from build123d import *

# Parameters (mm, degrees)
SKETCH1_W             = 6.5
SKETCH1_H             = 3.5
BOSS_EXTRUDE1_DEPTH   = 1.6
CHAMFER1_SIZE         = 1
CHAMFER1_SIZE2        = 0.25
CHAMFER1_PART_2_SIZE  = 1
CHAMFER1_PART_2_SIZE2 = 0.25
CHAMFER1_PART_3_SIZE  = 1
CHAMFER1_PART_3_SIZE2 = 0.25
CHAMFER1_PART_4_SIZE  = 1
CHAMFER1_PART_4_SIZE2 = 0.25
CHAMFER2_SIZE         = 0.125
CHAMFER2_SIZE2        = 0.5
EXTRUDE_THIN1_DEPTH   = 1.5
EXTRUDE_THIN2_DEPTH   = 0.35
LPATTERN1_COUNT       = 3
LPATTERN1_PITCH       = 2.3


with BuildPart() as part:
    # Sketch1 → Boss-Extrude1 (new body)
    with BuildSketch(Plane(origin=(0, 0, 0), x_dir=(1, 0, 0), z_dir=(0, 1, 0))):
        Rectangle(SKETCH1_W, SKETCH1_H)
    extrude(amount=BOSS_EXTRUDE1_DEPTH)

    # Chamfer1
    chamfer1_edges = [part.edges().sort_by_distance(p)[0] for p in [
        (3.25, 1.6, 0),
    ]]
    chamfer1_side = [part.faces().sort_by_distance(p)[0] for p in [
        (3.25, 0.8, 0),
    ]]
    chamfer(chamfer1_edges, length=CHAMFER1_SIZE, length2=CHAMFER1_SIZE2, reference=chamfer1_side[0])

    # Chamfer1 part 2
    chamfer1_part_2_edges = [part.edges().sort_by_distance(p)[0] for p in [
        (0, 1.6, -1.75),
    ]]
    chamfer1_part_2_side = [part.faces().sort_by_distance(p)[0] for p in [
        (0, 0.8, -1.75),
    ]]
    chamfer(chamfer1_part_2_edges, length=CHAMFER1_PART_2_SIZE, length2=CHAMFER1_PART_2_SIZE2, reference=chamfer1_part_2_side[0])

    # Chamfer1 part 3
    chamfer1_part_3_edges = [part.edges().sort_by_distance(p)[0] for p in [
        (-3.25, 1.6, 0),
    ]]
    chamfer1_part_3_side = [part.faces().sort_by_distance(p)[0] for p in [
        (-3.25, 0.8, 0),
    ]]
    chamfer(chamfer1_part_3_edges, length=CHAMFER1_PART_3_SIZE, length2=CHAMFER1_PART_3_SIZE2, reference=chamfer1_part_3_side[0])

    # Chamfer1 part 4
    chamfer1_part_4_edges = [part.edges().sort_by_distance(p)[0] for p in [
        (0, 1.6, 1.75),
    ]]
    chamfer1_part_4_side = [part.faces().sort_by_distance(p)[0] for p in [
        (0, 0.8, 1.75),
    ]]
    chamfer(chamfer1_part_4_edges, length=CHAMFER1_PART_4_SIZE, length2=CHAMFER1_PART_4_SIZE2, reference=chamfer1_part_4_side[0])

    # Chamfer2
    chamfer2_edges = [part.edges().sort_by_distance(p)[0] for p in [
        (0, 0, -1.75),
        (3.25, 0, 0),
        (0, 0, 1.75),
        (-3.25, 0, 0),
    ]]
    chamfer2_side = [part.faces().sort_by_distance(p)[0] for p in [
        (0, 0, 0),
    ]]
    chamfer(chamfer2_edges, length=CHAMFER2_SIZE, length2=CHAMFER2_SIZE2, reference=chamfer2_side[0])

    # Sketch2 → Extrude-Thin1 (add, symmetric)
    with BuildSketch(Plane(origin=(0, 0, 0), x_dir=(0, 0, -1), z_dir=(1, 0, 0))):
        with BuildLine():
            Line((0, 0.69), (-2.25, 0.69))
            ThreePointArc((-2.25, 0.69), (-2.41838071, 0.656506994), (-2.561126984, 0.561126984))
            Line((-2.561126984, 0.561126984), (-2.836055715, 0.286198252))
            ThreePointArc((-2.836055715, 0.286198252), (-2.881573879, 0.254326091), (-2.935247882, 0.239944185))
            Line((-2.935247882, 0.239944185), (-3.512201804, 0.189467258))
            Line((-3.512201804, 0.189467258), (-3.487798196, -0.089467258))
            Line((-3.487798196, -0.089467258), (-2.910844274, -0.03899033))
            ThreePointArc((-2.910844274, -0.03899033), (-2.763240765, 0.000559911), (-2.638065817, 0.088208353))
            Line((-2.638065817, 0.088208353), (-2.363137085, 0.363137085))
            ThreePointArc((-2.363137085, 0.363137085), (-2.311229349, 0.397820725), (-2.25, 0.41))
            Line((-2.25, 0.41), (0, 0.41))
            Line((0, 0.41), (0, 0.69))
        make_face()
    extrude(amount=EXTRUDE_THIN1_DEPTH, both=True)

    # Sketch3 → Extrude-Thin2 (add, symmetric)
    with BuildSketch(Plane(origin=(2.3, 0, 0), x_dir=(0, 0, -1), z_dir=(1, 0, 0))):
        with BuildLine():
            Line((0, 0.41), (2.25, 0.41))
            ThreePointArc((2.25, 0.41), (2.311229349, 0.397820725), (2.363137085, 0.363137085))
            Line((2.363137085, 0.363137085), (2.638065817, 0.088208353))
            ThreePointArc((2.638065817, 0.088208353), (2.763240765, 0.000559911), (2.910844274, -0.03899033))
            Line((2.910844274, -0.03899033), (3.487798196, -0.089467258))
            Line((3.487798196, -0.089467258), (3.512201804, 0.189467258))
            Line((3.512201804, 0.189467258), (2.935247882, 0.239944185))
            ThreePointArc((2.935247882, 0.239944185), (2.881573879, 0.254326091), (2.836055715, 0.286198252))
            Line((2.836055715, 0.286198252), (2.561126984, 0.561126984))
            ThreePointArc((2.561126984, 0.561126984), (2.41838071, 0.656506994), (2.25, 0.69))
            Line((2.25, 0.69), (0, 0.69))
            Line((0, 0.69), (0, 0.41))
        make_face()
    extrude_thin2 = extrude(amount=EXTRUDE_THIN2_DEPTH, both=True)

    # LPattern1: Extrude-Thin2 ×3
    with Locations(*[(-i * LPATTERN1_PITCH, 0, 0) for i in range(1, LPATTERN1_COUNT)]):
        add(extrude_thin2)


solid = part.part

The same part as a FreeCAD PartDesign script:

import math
import FreeCAD as App
import Part
import Sketcher
from FreeCAD import Vector
Q = App.Units.Quantity


def edges_at(feature, points):
    """Names of the edges that pass closest to the given points."""
    edges = feature.Shape.Edges
    near = lambda p: min(range(len(edges)), key=lambda i: edges[i].distToShape(Part.Vertex(*p))[0])
    return sorted({f"Edge{near(p) + 1}" for p in points})

doc = App.newDocument("Part")
body = doc.addObject("PartDesign::Body", "Body")

# Sketch on XZ plane
sketch1 = doc.addObject("Sketcher::SketchObject", "Sketch")
body.addObject(sketch1)
sketch1.AttachmentSupport = (doc.XZ_Plane, [""])
sketch1.MapMode = "FlatFace"
sketch1.addGeometry(Part.LineSegment(Vector(-3.2, -1.8, 0), Vector(-3.2, 1.8, 0)), False)
sketch1.addGeometry(Part.LineSegment(Vector(-3.2, 1.8, 0), Vector(3.2, 1.8, 0)), False)
sketch1.addGeometry(Part.LineSegment(Vector(3.2, 1.8, 0), Vector(3.2, -1.8, 0)), False)
sketch1.addGeometry(Part.LineSegment(Vector(3.2, -1.8, 0), Vector(-3.2, -1.8, 0)), False)
sketch1.addConstraint(Sketcher.Constraint("Coincident", 0, 2, 1, 1))
sketch1.addConstraint(Sketcher.Constraint("Coincident", 1, 2, 2, 1))
sketch1.addConstraint(Sketcher.Constraint("Coincident", 2, 2, 3, 1))
sketch1.addConstraint(Sketcher.Constraint("Coincident", 3, 2, 0, 1))
sketch1.addConstraint(Sketcher.Constraint("Vertical", 0))
sketch1.addConstraint(Sketcher.Constraint("Horizontal", 1))
sketch1.addConstraint(Sketcher.Constraint("Vertical", 2))
sketch1.addConstraint(Sketcher.Constraint("Horizontal", 3))
sketch1.addConstraint(Sketcher.Constraint("Symmetric", 0, 2, 2, 2, -1, 1))
sketch1.addConstraint(Sketcher.Constraint("DistanceX", 1, 1, 1, 2, Q("6.5 mm")))
sketch1.addConstraint(Sketcher.Constraint("DistanceY", 0, 1, 0, 2, Q("3.5 mm")))
pad1 = doc.addObject("PartDesign::Pad", "Pad")
body.addObject(pad1)
pad1.Profile = sketch1
pad1.Length = 1.6
pad1.Reversed = True
doc.recompute()

chamfer = doc.addObject("PartDesign::Chamfer", "Chamfer")
body.addObject(chamfer)
chamfer.Base = (pad1, edges_at(pad1, [(3.25, 1.6, 0)]))
chamfer.ChamferType = "Two distances"
chamfer.Size = 1
chamfer.Size2 = 0.25
doc.recompute()

chamfer2 = doc.addObject("PartDesign::Chamfer", "Chamfer001")
body.addObject(chamfer2)
chamfer2.Base = (chamfer, edges_at(chamfer, [(-0.125, 1.6, -1.75)]))
chamfer2.ChamferType = "Two distances"
chamfer2.Size = 1
chamfer2.Size2 = 0.25
chamfer2.FlipDirection = True
doc.recompute()

chamfer3 = doc.addObject("PartDesign::Chamfer", "Chamfer002")
body.addObject(chamfer3)
chamfer3.Base = (chamfer2, edges_at(chamfer2, [(-3.25, 1.6, 0.125)]))
chamfer3.ChamferType = "Two distances"
chamfer3.Size = 1
chamfer3.Size2 = 0.25
chamfer3.FlipDirection = True
doc.recompute()

chamfer4 = doc.addObject("PartDesign::Chamfer", "Chamfer003")
body.addObject(chamfer4)
chamfer4.Base = (chamfer3, edges_at(chamfer3, [(0, 1.6, 1.75)]))
chamfer4.ChamferType = "Two distances"
chamfer4.Size = 1
chamfer4.Size2 = 0.25
chamfer4.FlipDirection = True
doc.recompute()

chamfer5 = doc.addObject("PartDesign::Chamfer", "Chamfer004")
body.addObject(chamfer5)
chamfer5.Base = (chamfer4, edges_at(chamfer4, [
    (0, 0, -1.75),
    (3.25, 0, 0),
    (0, 0, 1.75),
    (-3.25, 0, 0),
]))
chamfer5.ChamferType = "Two distances"
chamfer5.Size = 0.125
chamfer5.Size2 = 0.5
chamfer5.FlipDirection = True

# Sketch on YZ plane
sketch2 = doc.addObject("Sketcher::SketchObject", "Sketch001")
body.addObject(sketch2)
sketch2.AttachmentSupport = (doc.YZ_Plane, [""])
sketch2.MapMode = "FlatFace"
sketch2.addGeometry(Part.LineSegment(Vector(0.69, 0, 0), Vector(0.69, 2.25, 0)), False)
sketch2.addGeometry(Part.ArcOfCircle(Part.Circle(Vector(0.25, 2.25, 0), Vector(0, 0, 1), 0.44), math.radians(0), math.radians(45)), False)
sketch2.addGeometry(Part.LineSegment(Vector(0.56, 2.56, 0), Vector(0.29, 2.84, 0)), False)
sketch2.addGeometry(Part.ArcOfCircle(Part.Circle(Vector(0.4, 2.95, 0), Vector(0, 0, 1), 0.16), math.radians(-175), math.radians(-135)), False)
sketch2.addGeometry(Part.LineSegment(Vector(0.24, 2.94, 0), Vector(0.19, 3.51, 0)), False)
sketch2.addGeometry(Part.LineSegment(Vector(0.19, 3.51, 0), Vector(-0.09, 3.49, 0)), False)
sketch2.addGeometry(Part.LineSegment(Vector(-0.09, 3.49, 0), Vector(-0.04, 2.91, 0)), False)
sketch2.addGeometry(Part.ArcOfCircle(Part.Circle(Vector(0.4, 2.95, 0), Vector(0, 0, 1), 0.44), math.radians(-175), math.radians(-135)), False)
sketch2.addGeometry(Part.LineSegment(Vector(0.09, 2.64, 0), Vector(0.36, 2.36, 0)), False)
sketch2.addGeometry(Part.ArcOfCircle(Part.Circle(Vector(0.25, 2.25, 0), Vector(0, 0, 1), 0.16), math.radians(0), math.radians(45)), False)
sketch2.addGeometry(Part.LineSegment(Vector(0.41, 2.25, 0), Vector(0.41, 0, 0)), False)
sketch2.addGeometry(Part.LineSegment(Vector(0.41, 0, 0), Vector(0.69, 0, 0)), False)
sketch2.addConstraint(Sketcher.Constraint("Tangent", 0, 2, 1, 1))
sketch2.addConstraint(Sketcher.Constraint("Tangent", 1, 2, 2, 1))
sketch2.addConstraint(Sketcher.Constraint("Tangent", 2, 2, 3, 2))
sketch2.addConstraint(Sketcher.Constraint("Tangent", 3, 1, 4, 1))
sketch2.addConstraint(Sketcher.Constraint("Coincident", 4, 2, 5, 1))
sketch2.addConstraint(Sketcher.Constraint("Coincident", 5, 2, 6, 1))
sketch2.addConstraint(Sketcher.Constraint("Tangent", 6, 2, 7, 1))
sketch2.addConstraint(Sketcher.Constraint("Tangent", 7, 2, 8, 1))
sketch2.addConstraint(Sketcher.Constraint("Tangent", 8, 2, 9, 2))
sketch2.addConstraint(Sketcher.Constraint("Tangent", 9, 1, 10, 1))
sketch2.addConstraint(Sketcher.Constraint("Coincident", 10, 2, 11, 1))
sketch2.addConstraint(Sketcher.Constraint("Coincident", 11, 2, 0, 1))
sketch2.addConstraint(Sketcher.Constraint("Vertical", 0))
sketch2.addConstraint(Sketcher.Constraint("Vertical", 10))
sketch2.addConstraint(Sketcher.Constraint("Horizontal", 11))
sketch2.addConstraint(Sketcher.Constraint("Coincident", 7, 3, 3, 3))
sketch2.addConstraint(Sketcher.Constraint("Coincident", 9, 3, 1, 3))
sketch2.addConstraint(Sketcher.Constraint("Equal", 1, 7))
sketch2.addConstraint(Sketcher.Constraint("Equal", 3, 9))
sketch2.addConstraint(Sketcher.Constraint("PointOnObject", 10, 2, -1))
sketch2.addConstraint(Sketcher.Constraint("Perpendicular", 4, 5))
sketch2.addConstraint(Sketcher.Constraint("Perpendicular", 5, 6))
sketch2.addConstraint(Sketcher.Constraint("Angle", 2, Q("135 deg")))
sketch2.addConstraint(Sketcher.Constraint("Angle", 4, Q("95 deg")))
sketch2.addConstraint(Sketcher.Constraint("Radius", 1, Q("0.44 mm")))
sketch2.addConstraint(Sketcher.Constraint("Radius", 3, Q("0.16 mm")))
sketch2.addConstraint(Sketcher.Constraint("DistanceY", 0, 1, 0, 2, Q("2.25 mm")))
sketch2.addConstraint(Sketcher.Constraint("DistanceX", -1, 1, 1, 3, Q("0.25 mm")))
sketch2.addConstraint(Sketcher.Constraint("DistanceX", -1, 1, 2, 2, Q("0.286198 mm")))
sketch2.addConstraint(Sketcher.Constraint("DistanceY", -1, 1, 4, 2, Q("3.512202 mm")))
pad2 = doc.addObject("PartDesign::Pad", "Pad001")
body.addObject(pad2)
pad2.Profile = sketch2
pad2.Length = 3
pad2.Midplane = True

# Sketch on YZ plane
sketch3 = doc.addObject("Sketcher::SketchObject", "Sketch002")
body.addObject(sketch3)
sketch3.AttachmentSupport = (doc.YZ_Plane, [""])
sketch3.MapMode = "FlatFace"
sketch3.AttachmentOffset = App.Placement(Vector(0, 0, 2.3), App.Rotation())
sketch3.addGeometry(Part.LineSegment(Vector(0.41, 0, 0), Vector(0.41, -2.25, 0)), False)
sketch3.addGeometry(Part.ArcOfCircle(Part.Circle(Vector(0.25, -2.25, 0), Vector(0, 0, 1), 0.16), math.radians(-45), math.radians(0)), False)
sketch3.addGeometry(Part.LineSegment(Vector(0.36, -2.36, 0), Vector(0.09, -2.64, 0)), False)
sketch3.addGeometry(Part.ArcOfCircle(Part.Circle(Vector(0.4, -2.95, 0), Vector(0, 0, 1), 0.44), math.radians(135), math.radians(175)), False)
sketch3.addGeometry(Part.LineSegment(Vector(-0.04, -2.91, 0), Vector(-0.09, -3.49, 0)), False)
sketch3.addGeometry(Part.LineSegment(Vector(-0.09, -3.49, 0), Vector(0.19, -3.51, 0)), False)
sketch3.addGeometry(Part.LineSegment(Vector(0.19, -3.51, 0), Vector(0.24, -2.94, 0)), False)
sketch3.addGeometry(Part.ArcOfCircle(Part.Circle(Vector(0.4, -2.95, 0), Vector(0, 0, 1), 0.16), math.radians(135), math.radians(175)), False)
sketch3.addGeometry(Part.LineSegment(Vector(0.29, -2.84, 0), Vector(0.56, -2.56, 0)), False)
sketch3.addGeometry(Part.ArcOfCircle(Part.Circle(Vector(0.25, -2.25, 0), Vector(0, 0, 1), 0.44), math.radians(-45), math.radians(0)), False)
sketch3.addGeometry(Part.LineSegment(Vector(0.69, -2.25, 0), Vector(0.69, 0, 0)), False)
sketch3.addGeometry(Part.LineSegment(Vector(0.69, 0, 0), Vector(0.41, 0, 0)), False)
sketch3.addConstraint(Sketcher.Constraint("Tangent", 0, 2, 1, 2))
sketch3.addConstraint(Sketcher.Constraint("Tangent", 1, 1, 2, 1))
sketch3.addConstraint(Sketcher.Constraint("Tangent", 2, 2, 3, 1))
sketch3.addConstraint(Sketcher.Constraint("Tangent", 3, 2, 4, 1))
sketch3.addConstraint(Sketcher.Constraint("Coincident", 4, 2, 5, 1))
sketch3.addConstraint(Sketcher.Constraint("Coincident", 5, 2, 6, 1))
sketch3.addConstraint(Sketcher.Constraint("Tangent", 6, 2, 7, 2))
sketch3.addConstraint(Sketcher.Constraint("Tangent", 7, 1, 8, 1))
sketch3.addConstraint(Sketcher.Constraint("Tangent", 8, 2, 9, 1))
sketch3.addConstraint(Sketcher.Constraint("Tangent", 9, 2, 10, 1))
sketch3.addConstraint(Sketcher.Constraint("Coincident", 10, 2, 11, 1))
sketch3.addConstraint(Sketcher.Constraint("Coincident", 11, 2, 0, 1))
sketch3.addConstraint(Sketcher.Constraint("Vertical", 0))
sketch3.addConstraint(Sketcher.Constraint("Vertical", 10))
sketch3.addConstraint(Sketcher.Constraint("Horizontal", 11))
sketch3.addConstraint(Sketcher.Constraint("Coincident", 7, 3, 3, 3))
sketch3.addConstraint(Sketcher.Constraint("Coincident", 9, 3, 1, 3))
sketch3.addConstraint(Sketcher.Constraint("Equal", 1, 7))
sketch3.addConstraint(Sketcher.Constraint("Equal", 3, 9))
sketch3.addConstraint(Sketcher.Constraint("PointOnObject", 10, 2, -1))
sketch3.addConstraint(Sketcher.Constraint("Perpendicular", 4, 5))
sketch3.addConstraint(Sketcher.Constraint("Perpendicular", 5, 6))
sketch3.addConstraint(Sketcher.Constraint("Angle", 2, Q("-135 deg")))
sketch3.addConstraint(Sketcher.Constraint("Angle", 4, Q("-95 deg")))
sketch3.addConstraint(Sketcher.Constraint("Radius", 1, Q("0.16 mm")))
sketch3.addConstraint(Sketcher.Constraint("Radius", 3, Q("0.44 mm")))
sketch3.addConstraint(Sketcher.Constraint("DistanceY", 0, 2, 0, 1, Q("2.25 mm")))
sketch3.addConstraint(Sketcher.Constraint("DistanceX", -1, 1, 1, 3, Q("0.25 mm")))
sketch3.addConstraint(Sketcher.Constraint("DistanceY", 4, 2, -1, 1, Q("3.487798 mm")))
sketch3.addConstraint(Sketcher.Constraint("DistanceX", -1, 1, 7, 1, Q("0.286198 mm")))
pad3 = doc.addObject("PartDesign::Pad", "Pad002")
body.addObject(pad3)
pad3.Profile = sketch3
pad3.Length = 0.7
pad3.Midplane = True
doc.recompute()

linearpattern = doc.addObject("PartDesign::LinearPattern", "LinearPattern")
body.addObject(linearpattern)
linearpattern.Originals = [pad3]
linearpattern.Direction = (doc.X_Axis, [""])
linearpattern.Mode = "offset"
linearpattern.Offset = 2.3
linearpattern.Occurrences = 3
linearpattern.Reversed = True
body.Tip = linearpattern

doc.recompute()
